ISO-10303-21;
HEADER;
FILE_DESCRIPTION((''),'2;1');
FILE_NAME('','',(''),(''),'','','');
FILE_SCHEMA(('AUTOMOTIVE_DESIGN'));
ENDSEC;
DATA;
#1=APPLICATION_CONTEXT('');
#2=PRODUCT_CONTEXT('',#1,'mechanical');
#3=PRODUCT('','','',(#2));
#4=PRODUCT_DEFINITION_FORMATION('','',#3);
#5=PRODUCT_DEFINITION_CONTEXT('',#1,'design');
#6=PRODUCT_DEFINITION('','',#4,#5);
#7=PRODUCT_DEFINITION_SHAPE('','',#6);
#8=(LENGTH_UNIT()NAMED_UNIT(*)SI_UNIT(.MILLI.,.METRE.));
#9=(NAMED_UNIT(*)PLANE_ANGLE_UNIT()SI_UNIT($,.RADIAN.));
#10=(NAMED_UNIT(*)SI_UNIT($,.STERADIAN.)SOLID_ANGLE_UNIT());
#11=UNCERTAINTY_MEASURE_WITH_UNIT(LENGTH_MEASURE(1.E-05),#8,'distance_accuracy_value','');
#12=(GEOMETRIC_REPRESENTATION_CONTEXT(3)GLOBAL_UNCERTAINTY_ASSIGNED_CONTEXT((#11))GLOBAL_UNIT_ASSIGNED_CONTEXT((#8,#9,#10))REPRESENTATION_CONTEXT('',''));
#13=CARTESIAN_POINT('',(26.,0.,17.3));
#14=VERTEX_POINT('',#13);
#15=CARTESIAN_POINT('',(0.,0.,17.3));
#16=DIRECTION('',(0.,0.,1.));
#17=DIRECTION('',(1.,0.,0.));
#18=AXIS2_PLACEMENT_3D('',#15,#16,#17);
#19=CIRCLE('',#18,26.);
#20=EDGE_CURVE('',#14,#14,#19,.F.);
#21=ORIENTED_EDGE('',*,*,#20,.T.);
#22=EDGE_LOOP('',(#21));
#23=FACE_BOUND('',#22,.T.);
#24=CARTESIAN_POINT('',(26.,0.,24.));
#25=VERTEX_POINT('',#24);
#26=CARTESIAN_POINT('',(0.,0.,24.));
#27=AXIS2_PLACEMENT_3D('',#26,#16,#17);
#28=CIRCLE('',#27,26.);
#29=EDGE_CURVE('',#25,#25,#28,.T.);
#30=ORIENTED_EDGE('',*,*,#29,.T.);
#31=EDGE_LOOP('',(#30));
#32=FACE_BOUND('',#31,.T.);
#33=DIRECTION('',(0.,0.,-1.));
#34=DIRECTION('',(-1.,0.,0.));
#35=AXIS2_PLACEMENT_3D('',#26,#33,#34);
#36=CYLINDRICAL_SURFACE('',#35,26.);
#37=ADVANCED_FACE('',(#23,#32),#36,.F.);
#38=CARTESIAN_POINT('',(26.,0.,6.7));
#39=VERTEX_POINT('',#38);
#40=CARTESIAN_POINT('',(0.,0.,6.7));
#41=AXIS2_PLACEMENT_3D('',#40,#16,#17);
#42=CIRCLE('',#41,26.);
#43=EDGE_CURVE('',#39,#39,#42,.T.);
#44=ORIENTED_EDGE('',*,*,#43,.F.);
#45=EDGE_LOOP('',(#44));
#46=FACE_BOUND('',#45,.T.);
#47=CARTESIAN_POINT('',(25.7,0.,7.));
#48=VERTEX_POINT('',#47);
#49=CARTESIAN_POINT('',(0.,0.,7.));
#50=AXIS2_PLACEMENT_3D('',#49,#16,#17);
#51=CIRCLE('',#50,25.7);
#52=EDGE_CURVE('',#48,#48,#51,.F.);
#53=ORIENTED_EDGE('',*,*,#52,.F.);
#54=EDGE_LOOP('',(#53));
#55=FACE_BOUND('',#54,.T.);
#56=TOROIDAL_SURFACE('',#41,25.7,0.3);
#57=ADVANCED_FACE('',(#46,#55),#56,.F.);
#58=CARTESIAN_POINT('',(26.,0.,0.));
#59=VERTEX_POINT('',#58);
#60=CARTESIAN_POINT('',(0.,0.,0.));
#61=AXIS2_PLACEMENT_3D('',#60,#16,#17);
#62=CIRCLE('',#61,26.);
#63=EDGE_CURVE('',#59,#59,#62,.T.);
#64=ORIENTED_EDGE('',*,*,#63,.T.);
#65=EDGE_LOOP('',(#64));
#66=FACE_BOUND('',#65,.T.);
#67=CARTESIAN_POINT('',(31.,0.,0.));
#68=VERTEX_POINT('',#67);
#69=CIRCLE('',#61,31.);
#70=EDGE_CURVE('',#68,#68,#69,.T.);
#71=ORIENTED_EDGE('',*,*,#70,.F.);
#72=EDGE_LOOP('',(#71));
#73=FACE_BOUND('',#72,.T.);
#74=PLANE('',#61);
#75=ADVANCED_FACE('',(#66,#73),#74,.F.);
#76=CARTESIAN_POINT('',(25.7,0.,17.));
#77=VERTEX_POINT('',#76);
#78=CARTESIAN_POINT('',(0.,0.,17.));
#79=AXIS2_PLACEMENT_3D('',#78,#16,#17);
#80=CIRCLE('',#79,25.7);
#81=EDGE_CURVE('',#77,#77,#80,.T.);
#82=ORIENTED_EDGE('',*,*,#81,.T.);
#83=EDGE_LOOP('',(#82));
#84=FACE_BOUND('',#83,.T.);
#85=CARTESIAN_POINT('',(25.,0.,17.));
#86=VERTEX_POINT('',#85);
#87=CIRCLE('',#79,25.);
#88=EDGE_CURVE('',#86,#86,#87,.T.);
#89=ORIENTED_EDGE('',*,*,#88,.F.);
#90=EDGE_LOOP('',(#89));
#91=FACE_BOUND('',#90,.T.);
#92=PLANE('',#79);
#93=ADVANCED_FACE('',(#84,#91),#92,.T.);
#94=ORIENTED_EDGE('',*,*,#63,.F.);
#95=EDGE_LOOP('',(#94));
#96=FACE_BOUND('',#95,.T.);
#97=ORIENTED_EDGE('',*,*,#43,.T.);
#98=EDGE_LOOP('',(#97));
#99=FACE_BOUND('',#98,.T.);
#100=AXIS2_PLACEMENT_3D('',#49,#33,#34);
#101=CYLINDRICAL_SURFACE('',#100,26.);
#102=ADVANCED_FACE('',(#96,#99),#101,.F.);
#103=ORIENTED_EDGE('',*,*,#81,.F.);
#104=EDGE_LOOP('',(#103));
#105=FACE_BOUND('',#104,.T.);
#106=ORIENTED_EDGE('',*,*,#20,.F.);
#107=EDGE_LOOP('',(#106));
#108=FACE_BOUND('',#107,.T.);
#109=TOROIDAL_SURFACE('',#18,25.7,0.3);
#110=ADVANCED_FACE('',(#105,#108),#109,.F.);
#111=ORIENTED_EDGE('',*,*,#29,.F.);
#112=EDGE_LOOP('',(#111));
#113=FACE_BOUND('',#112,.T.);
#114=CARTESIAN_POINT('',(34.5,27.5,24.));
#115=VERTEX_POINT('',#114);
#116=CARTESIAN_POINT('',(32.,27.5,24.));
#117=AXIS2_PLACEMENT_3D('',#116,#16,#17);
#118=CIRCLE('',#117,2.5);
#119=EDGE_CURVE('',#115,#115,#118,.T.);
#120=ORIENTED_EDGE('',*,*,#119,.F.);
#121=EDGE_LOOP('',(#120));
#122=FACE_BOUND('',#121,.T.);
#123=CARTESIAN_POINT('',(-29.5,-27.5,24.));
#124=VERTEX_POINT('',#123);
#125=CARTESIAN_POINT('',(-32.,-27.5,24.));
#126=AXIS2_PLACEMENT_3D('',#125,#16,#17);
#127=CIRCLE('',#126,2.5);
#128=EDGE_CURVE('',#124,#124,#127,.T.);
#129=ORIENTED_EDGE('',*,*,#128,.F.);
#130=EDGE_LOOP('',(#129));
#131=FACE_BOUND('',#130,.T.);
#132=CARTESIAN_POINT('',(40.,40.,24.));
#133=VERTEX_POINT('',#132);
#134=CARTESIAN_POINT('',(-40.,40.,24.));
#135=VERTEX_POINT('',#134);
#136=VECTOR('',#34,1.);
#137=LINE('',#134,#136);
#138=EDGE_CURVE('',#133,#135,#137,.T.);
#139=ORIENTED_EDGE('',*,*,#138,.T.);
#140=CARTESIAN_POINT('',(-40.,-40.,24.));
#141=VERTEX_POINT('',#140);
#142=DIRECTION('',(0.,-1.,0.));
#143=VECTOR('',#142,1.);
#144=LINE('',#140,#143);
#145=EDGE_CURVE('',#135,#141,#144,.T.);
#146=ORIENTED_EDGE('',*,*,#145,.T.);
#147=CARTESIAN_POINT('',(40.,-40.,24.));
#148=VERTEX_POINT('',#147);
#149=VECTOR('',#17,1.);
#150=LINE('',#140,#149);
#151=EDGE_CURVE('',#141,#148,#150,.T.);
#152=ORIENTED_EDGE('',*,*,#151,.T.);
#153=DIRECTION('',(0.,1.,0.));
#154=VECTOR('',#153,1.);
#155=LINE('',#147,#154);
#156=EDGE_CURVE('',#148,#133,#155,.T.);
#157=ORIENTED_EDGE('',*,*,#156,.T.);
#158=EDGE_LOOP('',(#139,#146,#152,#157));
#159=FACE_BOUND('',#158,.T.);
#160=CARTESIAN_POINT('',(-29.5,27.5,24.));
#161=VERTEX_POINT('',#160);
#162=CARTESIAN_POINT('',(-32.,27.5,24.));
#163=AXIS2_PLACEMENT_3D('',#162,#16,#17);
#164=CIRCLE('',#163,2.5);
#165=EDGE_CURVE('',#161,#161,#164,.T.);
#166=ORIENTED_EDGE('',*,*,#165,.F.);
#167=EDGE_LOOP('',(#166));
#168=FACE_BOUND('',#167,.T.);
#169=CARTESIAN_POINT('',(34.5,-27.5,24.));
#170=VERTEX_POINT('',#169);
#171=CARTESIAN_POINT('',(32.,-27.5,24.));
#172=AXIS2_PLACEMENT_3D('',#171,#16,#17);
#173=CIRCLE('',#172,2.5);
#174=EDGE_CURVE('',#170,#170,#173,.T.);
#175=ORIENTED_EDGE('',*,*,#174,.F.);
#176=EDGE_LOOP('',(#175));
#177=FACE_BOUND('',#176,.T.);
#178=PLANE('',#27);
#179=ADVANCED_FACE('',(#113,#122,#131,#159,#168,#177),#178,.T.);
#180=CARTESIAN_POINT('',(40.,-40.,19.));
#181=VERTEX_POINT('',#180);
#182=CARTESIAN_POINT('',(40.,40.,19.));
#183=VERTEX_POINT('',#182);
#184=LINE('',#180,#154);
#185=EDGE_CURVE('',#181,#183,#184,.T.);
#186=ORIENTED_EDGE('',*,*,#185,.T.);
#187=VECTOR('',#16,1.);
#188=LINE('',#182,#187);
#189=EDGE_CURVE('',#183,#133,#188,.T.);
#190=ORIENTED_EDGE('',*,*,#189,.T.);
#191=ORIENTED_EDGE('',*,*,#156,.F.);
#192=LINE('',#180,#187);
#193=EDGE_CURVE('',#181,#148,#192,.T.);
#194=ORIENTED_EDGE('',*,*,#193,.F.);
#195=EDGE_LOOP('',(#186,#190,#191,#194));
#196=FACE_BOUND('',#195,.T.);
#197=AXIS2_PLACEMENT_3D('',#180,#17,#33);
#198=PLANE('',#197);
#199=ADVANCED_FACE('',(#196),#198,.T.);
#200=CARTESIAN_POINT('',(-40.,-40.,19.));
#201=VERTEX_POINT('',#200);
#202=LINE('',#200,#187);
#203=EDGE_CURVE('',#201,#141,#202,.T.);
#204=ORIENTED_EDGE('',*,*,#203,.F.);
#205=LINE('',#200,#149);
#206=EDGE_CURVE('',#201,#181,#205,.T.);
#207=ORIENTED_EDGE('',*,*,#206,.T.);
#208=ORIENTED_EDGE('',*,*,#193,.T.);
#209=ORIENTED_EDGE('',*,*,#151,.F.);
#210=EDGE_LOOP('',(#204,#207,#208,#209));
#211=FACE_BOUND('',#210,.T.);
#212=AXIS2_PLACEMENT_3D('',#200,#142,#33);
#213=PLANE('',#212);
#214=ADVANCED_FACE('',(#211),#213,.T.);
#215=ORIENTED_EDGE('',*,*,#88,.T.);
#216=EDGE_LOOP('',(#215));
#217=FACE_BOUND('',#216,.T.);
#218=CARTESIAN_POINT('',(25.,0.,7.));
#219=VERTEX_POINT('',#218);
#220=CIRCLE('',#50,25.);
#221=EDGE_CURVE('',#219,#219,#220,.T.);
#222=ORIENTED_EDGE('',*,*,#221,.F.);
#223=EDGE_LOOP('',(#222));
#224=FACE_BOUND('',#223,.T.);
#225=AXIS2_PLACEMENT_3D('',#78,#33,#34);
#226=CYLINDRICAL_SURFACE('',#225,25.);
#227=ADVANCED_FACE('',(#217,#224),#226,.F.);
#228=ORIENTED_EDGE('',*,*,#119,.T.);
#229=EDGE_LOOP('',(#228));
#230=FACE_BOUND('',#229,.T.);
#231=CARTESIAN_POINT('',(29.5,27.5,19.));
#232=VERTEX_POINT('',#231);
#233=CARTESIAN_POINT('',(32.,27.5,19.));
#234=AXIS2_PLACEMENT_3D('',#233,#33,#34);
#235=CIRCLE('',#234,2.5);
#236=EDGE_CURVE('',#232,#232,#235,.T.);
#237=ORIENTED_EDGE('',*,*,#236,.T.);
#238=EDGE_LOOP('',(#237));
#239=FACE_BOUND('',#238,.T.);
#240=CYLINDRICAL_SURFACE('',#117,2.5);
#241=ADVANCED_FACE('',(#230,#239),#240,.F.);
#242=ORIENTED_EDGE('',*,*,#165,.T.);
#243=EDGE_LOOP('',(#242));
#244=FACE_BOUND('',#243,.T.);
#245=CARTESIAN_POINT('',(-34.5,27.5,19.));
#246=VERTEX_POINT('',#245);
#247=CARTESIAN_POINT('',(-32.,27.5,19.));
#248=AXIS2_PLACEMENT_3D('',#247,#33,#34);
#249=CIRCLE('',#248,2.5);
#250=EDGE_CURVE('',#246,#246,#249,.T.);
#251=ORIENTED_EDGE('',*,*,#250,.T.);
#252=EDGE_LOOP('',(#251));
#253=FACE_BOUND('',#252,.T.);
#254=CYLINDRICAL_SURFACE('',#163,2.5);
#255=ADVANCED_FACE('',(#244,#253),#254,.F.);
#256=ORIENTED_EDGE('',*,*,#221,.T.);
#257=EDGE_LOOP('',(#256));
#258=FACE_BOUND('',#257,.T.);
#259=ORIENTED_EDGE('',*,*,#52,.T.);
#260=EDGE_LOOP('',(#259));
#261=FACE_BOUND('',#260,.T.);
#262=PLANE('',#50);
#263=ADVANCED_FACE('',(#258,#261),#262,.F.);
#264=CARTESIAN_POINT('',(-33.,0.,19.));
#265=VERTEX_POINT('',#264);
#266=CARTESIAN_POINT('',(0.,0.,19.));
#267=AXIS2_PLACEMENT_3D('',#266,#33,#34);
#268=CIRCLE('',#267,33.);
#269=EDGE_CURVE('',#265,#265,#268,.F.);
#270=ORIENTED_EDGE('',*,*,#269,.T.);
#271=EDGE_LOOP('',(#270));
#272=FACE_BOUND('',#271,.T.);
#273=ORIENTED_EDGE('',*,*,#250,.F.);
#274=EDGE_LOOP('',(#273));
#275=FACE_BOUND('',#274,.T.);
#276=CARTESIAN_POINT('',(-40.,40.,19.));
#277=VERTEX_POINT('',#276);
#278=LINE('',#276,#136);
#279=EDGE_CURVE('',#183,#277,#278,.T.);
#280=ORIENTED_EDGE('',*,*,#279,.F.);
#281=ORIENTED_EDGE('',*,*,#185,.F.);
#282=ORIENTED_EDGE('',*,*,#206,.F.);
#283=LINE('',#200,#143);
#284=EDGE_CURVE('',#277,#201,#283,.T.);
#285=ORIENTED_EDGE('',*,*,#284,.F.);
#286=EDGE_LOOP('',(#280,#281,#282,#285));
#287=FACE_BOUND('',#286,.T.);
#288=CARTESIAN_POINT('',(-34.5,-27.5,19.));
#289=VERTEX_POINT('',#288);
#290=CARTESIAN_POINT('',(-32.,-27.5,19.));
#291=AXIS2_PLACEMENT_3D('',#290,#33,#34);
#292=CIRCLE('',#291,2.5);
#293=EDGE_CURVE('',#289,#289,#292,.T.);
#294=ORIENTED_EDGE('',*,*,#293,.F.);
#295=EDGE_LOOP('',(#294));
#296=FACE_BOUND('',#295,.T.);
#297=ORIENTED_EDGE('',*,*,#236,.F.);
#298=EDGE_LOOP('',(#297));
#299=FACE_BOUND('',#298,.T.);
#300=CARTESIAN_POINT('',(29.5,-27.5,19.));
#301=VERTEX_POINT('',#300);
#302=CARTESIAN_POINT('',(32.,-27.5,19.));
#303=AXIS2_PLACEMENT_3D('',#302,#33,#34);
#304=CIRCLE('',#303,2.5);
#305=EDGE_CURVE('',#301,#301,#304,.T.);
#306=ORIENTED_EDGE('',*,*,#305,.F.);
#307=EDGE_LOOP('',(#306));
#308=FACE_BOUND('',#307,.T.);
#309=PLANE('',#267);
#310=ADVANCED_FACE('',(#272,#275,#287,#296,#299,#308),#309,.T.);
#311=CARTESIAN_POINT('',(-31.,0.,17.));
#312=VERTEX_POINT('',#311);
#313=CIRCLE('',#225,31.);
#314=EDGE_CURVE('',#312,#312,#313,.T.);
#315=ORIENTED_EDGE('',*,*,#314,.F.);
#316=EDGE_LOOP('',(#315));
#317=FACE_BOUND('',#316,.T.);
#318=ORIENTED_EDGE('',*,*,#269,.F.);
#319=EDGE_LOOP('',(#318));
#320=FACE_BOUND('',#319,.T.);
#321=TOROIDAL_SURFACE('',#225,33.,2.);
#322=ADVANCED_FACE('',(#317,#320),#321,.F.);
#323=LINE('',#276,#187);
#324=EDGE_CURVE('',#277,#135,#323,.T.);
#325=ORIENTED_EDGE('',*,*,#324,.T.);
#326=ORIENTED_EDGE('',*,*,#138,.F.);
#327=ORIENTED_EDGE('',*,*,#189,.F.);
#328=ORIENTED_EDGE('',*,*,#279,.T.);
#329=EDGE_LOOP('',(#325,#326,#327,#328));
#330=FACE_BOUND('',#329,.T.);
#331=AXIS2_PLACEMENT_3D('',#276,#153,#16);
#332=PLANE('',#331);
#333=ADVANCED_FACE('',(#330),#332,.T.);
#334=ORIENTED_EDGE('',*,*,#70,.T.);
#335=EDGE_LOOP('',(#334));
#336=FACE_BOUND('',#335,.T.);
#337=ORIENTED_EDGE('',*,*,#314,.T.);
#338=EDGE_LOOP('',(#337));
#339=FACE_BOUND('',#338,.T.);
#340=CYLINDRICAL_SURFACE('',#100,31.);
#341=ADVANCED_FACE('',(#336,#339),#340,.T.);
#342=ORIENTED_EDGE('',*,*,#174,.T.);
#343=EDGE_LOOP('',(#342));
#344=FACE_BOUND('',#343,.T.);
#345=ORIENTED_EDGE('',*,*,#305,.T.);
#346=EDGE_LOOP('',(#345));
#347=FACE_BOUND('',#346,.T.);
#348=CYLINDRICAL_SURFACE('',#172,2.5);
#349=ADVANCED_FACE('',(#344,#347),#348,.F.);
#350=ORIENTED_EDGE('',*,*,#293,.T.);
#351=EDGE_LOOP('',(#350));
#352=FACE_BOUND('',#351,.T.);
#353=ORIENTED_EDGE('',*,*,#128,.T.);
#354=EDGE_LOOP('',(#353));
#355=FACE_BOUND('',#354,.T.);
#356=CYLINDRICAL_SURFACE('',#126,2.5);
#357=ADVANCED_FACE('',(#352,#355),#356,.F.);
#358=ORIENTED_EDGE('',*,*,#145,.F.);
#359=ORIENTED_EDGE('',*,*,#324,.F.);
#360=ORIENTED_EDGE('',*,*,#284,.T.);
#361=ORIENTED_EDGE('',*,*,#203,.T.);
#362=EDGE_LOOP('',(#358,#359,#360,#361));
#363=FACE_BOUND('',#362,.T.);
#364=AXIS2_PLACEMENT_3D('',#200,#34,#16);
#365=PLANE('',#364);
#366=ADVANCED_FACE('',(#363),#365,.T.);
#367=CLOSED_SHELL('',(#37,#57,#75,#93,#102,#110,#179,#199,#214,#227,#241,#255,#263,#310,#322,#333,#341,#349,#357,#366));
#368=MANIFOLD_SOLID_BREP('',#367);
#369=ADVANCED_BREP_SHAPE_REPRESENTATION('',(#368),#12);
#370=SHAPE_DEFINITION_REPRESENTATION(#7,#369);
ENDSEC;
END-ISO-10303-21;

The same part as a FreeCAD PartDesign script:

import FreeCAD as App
import Part
import Sketcher
Q = App.Units.Quantity


def edges_at(feature, points):
    """Names of the edges that pass closest to the given points."""
    edges = feature.Shape.Edges
    near = lambda p: min(range(len(edges)), key=lambda i: edges[i].distToShape(Part.Vertex(*p))[0])
    return sorted({f"Edge{near(p) + 1}" for p in points})

doc = App.newDocument("Part")
body = doc.addObject("PartDesign::Body", "Body")

# Sketch on XY plane
sketch1 = body.newObject("Sketcher::SketchObject", "Sketch")
sketch1.AttachmentSupport = (doc.getObject("XY_Plane"), [""])
sketch1.MapMode = "FlatFace"
sketch1.addGeometry([
    Part.Circle(App.Vector(0, 0, 0), App.Vector(0, 0, 1), 31),
    Part.Circle(App.Vector(0, 0, 0), App.Vector(0, 0, 1), 26),
], False)
sketch1.addConstraint([
    Sketcher.Constraint("Coincident", 0, 3, -1, 1),
    Sketcher.Constraint("Coincident", 1, 3, -1, 1),
    Sketcher.Constraint("Diameter", 0, Q("62 mm")),
    Sketcher.Constraint("Diameter", 1, Q("52 mm")),
])
pad1 = body.newObject("PartDesign::Pad", "Pad")
pad1.Profile = sketch1
pad1.Length = 7

# Sketch on XY plane
sketch2 = body.newObject("Sketcher::SketchObject", "Sketch001")
sketch2.AttachmentSupport = (doc.getObject("XY_Plane"), [""])
sketch2.MapMode = "FlatFace"
sketch2.AttachmentOffset = App.Placement(App.Vector(0, 0, 7), App.Rotation())
sketch2.addGeometry([
    Part.Circle(App.Vector(0, 0, 0), App.Vector(0, 0, 1), 31),
    Part.Circle(App.Vector(0, 0, 0), App.Vector(0, 0, 1), 25),
], False)
sketch2.addConstraint([
    Sketcher.Constraint("Coincident", 0, 3, -1, 1),
    Sketcher.Constraint("Coincident", 1, 3, -1, 1),
    Sketcher.Constraint("Diameter", 0, Q("62 mm")),
    Sketcher.Constraint("Diameter", 1, Q("50 mm")),
])
pad2 = body.newObject("PartDesign::Pad", "Pad001")
pad2.Profile = sketch2
pad2.Length = 10

# Sketch on XY plane
sketch3 = body.newObject("Sketcher::SketchObject", "Sketch002")
sketch3.AttachmentSupport = (doc.getObject("XY_Plane"), [""])
sketch3.MapMode = "FlatFace"
sketch3.AttachmentOffset = App.Placement(App.Vector(0, 0, 17), App.Rotation())
sketch3.addGeometry([
    Part.Circle(App.Vector(0, 0, 0), App.Vector(0, 0, 1), 31),
    Part.Circle(App.Vector(0, 0, 0), App.Vector(0, 0, 1), 26),
], False)
sketch3.addConstraint([
    Sketcher.Constraint("Coincident", 0, 3, -1, 1),
    Sketcher.Constraint("Coincident", 1, 3, -1, 1),
    Sketcher.Constraint("Diameter", 0, Q("62 mm")),
    Sketcher.Constraint("Diameter", 1, Q("52 mm")),
])
pad3 = body.newObject("PartDesign::Pad", "Pad002")
pad3.Profile = sketch3
pad3.Length = 7
doc.recompute()

fillet = body.newObject("PartDesign::Fillet", "Fillet")
fillet.Base = (pad3, edges_at(pad3, [(-26, 0, 7), (-26, 0, 17)]))
fillet.Radius = 0.3

# Sketch on XY plane
sketch4 = body.newObject("Sketcher::SketchObject", "Sketch003")
sketch4.AttachmentSupport = (doc.getObject("XY_Plane"), [""])
sketch4.MapMode = "FlatFace"
sketch4.AttachmentOffset = App.Placement(App.Vector(0, 0, 24), App.Rotation())
sketch4.addGeometry([
    Part.LineSegment(App.Vector(-40, 40, 0), App.Vector(-40, -40, 0)),  # 0
    Part.LineSegment(App.Vector(-40, -40, 0), App.Vector(40, -40, 0)),  # 1
    Part.LineSegment(App.Vector(40, -40, 0), App.Vector(40, 40, 0)),  # 2
    Part.LineSegment(App.Vector(40, 40, 0), App.Vector(-40, 40, 0)),  # 3
    Part.Circle(App.Vector(0, 0, 0), App.Vector(0, 0, 1), 31),  # 4
], False)
sketch4.addConstraint([
    Sketcher.Constraint("Coincident", 0, 2, 1, 1),
    Sketcher.Constraint("Coincident", 1, 2, 2, 1),
    Sketcher.Constraint("Coincident", 2, 2, 3, 1),
    Sketcher.Constraint("Coincident", 3, 2, 0, 1),
    Sketcher.Constraint("Vertical", 0),
    Sketcher.Constraint("Horizontal", 1),
    Sketcher.Constraint("Vertical", 2),
    Sketcher.Constraint("Horizontal", 3),
    Sketcher.Constraint("Coincident", 4, 3, -1, 1),
    Sketcher.Constraint("Symmetric", 0, 2, 2, 2, -1, 1),
    Sketcher.Constraint("Equal", 3, 0),
    Sketcher.Constraint("Diameter", 4, Q("62 mm")),
    Sketcher.Constraint("DistanceX", 1, 1, 1, 2, Q("80 mm")),
])
pad4 = body.newObject("PartDesign::Pad", "Pad003")
pad4.Profile = sketch4
pad4.Length = 5
pad4.Reversed = True
doc.recompute()

fillet2 = body.newObject("PartDesign::Fillet", "Fillet001")
fillet2.Base = (pad4, edges_at(pad4, [(-31, 0, 19)]))
fillet2.Radius = 2

# Sketch on XY plane
sketch5 = body.newObject("Sketcher::SketchObject", "Sketch004")
sketch5.AttachmentSupport = (doc.getObject("XY_Plane"), [""])
sketch5.MapMode = "FlatFace"
sketch5.AttachmentOffset = App.Placement(App.Vector(0, 0, 24), App.Rotation())
sketch5.addGeometry([
    Part.Circle(App.Vector(-32, 27.5, 0), App.Vector(0, 0, 1), 2.5),
    Part.Circle(App.Vector(32, 27.5, 0), App.Vector(0, 0, 1), 2.5),
    Part.Circle(App.Vector(32, -27.5, 0), App.Vector(0, 0, 1), 2.5),
    Part.Circle(App.Vector(-32, -27.5, 0), App.Vector(0, 0, 1), 2.5),
], False)
sketch5.addConstraint([
    Sketcher.Constraint("Equal", 0, 1),
    Sketcher.Constraint("Equal", 1, 2),
    Sketcher.Constraint("Equal", 2, 3),
    Sketcher.Constraint("Symmetric", 0, 3, 2, 3, -1, 1),
    Sketcher.Constraint("Symmetric", 1, 3, 3, 3, -1, 1),
    Sketcher.Constraint("Symmetric", 0, 3, 1, 3, -2),
    Sketcher.Constraint("Diameter", 0, Q("5 mm")),
    Sketcher.Constraint("DistanceX", 0, 3, -1, 1, Q("32 mm")),
    Sketcher.Constraint("DistanceY", 2, 3, 1, 3, Q("55 mm")),
])
doc.recompute()
hole = body.newObject("PartDesign::Hole", "Hole")
hole.Profile = sketch5
hole.ThreadType = "None"
hole.Diameter = 5
hole.DepthType = "ThroughAll"

doc.recompute()
